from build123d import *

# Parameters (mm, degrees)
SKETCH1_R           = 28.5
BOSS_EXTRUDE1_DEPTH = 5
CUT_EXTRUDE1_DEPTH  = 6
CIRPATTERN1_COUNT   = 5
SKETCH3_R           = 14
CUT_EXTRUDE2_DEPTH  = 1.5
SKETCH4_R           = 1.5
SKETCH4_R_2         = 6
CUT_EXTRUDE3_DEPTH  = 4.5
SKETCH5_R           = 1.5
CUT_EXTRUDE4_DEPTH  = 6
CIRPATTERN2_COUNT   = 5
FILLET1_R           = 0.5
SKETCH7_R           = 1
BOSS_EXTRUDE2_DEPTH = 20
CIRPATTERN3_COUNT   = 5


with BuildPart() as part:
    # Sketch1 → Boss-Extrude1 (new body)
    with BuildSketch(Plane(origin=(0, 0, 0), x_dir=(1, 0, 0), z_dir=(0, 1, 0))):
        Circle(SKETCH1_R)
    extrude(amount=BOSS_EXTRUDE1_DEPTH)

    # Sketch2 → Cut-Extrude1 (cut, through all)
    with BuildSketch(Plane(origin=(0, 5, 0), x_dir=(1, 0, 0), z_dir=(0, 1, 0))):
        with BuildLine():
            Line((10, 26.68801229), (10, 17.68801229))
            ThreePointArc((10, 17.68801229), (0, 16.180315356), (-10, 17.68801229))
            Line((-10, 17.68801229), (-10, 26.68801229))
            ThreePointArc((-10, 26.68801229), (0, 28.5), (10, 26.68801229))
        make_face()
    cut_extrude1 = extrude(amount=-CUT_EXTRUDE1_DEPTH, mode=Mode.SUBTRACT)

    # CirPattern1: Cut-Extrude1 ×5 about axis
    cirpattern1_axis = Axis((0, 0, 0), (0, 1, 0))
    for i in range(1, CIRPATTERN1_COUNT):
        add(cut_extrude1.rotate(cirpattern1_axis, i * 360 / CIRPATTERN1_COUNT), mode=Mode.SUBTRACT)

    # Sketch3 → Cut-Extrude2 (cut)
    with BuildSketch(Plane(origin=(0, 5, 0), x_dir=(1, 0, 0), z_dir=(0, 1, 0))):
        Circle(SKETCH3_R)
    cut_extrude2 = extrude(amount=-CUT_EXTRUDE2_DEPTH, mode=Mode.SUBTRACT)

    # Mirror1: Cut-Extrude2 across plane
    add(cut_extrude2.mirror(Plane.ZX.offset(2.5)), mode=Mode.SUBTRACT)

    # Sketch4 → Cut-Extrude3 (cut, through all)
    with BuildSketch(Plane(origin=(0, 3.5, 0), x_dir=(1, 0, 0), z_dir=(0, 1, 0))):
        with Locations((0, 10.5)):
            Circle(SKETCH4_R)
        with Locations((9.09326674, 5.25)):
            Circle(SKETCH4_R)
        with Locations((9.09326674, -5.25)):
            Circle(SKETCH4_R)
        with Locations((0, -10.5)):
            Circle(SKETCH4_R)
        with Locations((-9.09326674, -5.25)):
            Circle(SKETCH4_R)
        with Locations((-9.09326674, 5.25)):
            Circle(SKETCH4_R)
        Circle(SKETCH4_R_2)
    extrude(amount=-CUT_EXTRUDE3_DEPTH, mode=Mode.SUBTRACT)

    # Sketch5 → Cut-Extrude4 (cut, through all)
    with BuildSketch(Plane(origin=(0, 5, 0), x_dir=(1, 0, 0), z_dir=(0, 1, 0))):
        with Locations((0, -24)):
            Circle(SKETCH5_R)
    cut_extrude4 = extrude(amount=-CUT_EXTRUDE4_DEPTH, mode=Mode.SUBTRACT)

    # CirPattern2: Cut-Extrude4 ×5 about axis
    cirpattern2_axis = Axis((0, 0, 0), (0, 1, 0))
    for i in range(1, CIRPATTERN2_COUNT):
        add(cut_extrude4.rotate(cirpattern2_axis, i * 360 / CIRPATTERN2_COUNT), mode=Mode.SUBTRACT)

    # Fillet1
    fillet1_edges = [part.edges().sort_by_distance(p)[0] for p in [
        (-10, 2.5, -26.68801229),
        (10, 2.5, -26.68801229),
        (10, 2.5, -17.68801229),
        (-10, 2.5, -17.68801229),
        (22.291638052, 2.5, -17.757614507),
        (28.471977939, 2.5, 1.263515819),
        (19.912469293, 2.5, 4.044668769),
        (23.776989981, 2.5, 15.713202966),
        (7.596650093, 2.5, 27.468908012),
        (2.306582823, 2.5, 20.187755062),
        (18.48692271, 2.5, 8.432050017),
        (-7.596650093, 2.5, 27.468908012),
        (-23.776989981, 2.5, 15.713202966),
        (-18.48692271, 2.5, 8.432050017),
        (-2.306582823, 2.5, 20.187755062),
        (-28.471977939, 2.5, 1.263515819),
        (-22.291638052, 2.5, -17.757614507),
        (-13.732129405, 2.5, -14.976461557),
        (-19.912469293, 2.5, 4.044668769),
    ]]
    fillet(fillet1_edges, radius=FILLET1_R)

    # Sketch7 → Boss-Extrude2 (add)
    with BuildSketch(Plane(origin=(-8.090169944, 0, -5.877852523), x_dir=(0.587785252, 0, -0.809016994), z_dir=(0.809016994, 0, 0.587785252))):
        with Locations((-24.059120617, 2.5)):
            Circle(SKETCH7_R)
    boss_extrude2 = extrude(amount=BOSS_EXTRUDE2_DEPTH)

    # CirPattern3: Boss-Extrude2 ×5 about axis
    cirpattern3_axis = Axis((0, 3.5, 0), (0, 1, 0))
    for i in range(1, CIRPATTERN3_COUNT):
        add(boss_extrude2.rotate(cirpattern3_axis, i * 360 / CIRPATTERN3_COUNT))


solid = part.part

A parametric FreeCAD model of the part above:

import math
import FreeCAD as App
import Part
import Sketcher

V = App.Vector
Q = App.Units.Quantity


def edges_at(feature, points):
    """Names of the edges that pass closest to the given points."""
    edges = feature.Shape.Edges
    near = lambda p: min(range(len(edges)), key=lambda i: edges[i].distToShape(Part.Vertex(*p))[0])
    return sorted({f"Edge{near(p) + 1}" for p in points})

doc = App.newDocument("Part")
params = doc.addObject("Spreadsheet::Sheet", "Params")
for row, (alias, value) in enumerate([
    ("sketch1_diameter", "57 mm"),
    ("pad1_length", "5 mm"),
    ("sketch2_radius", "28.5 mm"),
    ("sketch2_height", "9 mm"),
    ("sketch3_diameter", "28 mm"),
    ("pocket2_length", "1.5 mm"),
    ("sketch4_diameter", "3 mm"),
    ("sketch4_diameter2", "12 mm"),
    ("sketch5_diameter", "3 mm"),
    ("fillet_radius", "0.5 mm"),
    ("sketch6_diameter", "2 mm"),
    ("pad2_length", "20 mm"),
], start=1):
    params.set(f"A{row}", alias)
    params.set(f"B{row}", "=" + value)
    params.setAlias(f"B{row}", alias)

body = doc.addObject("PartDesign::Body", "Body")

# Sketch on XZ plane
sketch1 = body.newObject("Sketcher::SketchObject", "Sketch")
sketch1.AttachmentSupport = (doc.getObject("XZ_Plane"), [""])
sketch1.MapMode = "FlatFace"
sketch1.addGeometry(Part.Circle(V(0, 0, 0), V(0, 0, 1), 28), False)
sketch1.addConstraint([
    Sketcher.Constraint("Coincident", 0, 3, -1, 1),
    Sketcher.Constraint("Diameter", 0, Q("57 mm")),
])
sketch1.setExpression("Constraints[1]", "Params.sketch1_diameter")
pad1 = body.newObject("PartDesign::Pad", "Pad")
pad1.Profile = sketch1
pad1.setExpression("Length", "Params.pad1_length")
pad1.Reversed = True

# Sketch on XZ plane
sketch2 = body.newObject("Sketcher::SketchObject", "Sketch001")
sketch2.AttachmentSupport = (doc.getObject("XZ_Plane"), [""])
sketch2.MapMode = "FlatFace"
sketch2.AttachmentOffset = App.Placement(V(0, 0, -5), App.Rotation())
sketch2.addGeometry([
    Part.LineSegment(V(10, -18, 0), V(10, -27, 0)),
    Part.ArcOfCircle(Part.Circle(V(0, 0, 0), V(0, 0, 1), 28), math.radians(-111), math.radians(-69)),
    Part.LineSegment(V(-10, -27, 0), V(-10, -18, 0)),
    Part.ArcOfCircle(Part.Circle(V(0, -50, 0), V(0, 0, 1), 34), math.radians(73), math.radians(107)),
], False)
sketch2.addConstraint([
    Sketcher.Constraint("Coincident", 0, 2, 1, 2),
    Sketcher.Constraint("Coincident", 1, 1, 2, 1),
    Sketcher.Constraint("Coincident", 2, 2, 3, 2),
    Sketcher.Constraint("Coincident", 3, 1, 0, 1),
    Sketcher.Constraint("Vertical", 0),
    Sketcher.Constraint("Vertical", 2),
    Sketcher.Constraint("Coincident", 1, 3, -1, 1),
    Sketcher.Constraint("Symmetric", 2, 2, 3, 1, -2),
    Sketcher.Constraint("Radius", 1, Q("28.5 mm")),
    Sketcher.Constraint("DistanceY", 0, 2, 0, 1, Q("9 mm")),
    Sketcher.Constraint("DistanceX", -1, 1, 0, 2, Q("10 mm")),
    Sketcher.Constraint("Radius", 3, Q("33.917012 mm")),
])
sketch2.setExpression("Constraints[8]", "Params.sketch2_radius")
sketch2.setExpression("Constraints[9]", "Params.sketch2_height")
pocket1 = body.newObject("PartDesign::Pocket", "Pocket")
pocket1.Profile = sketch2
pocket1.Type = "ThroughAll"
pocket1.Reversed = True
doc.recompute()

polarpattern = body.newObject("PartDesign::PolarPattern", "PolarPattern")
polarpattern.Originals = [pocket1]
polarpattern.Axis = (doc.getObject("Y_Axis"), [""])
polarpattern.Angle = 360
polarpattern.Occurrences = 5
body.Tip = polarpattern

# Sketch on XZ plane
sketch3 = body.newObject("Sketcher::SketchObject", "Sketch002")
sketch3.AttachmentSupport = (doc.getObject("XZ_Plane"), [""])
sketch3.MapMode = "FlatFace"
sketch3.AttachmentOffset = App.Placement(V(0, 0, -5), App.Rotation())
sketch3.addGeometry(Part.Circle(V(0, 0, 0), V(0, 0, 1), 14), False)
sketch3.addConstraint([
    Sketcher.Constraint("Coincident", 0, 3, -1, 1),
    Sketcher.Constraint("Diameter", 0, Q("28 mm")),
])
sketch3.setExpression("Constraints[1]", "Params.sketch3_diameter")
pocket2 = body.newObject("PartDesign::Pocket", "Pocket001")
pocket2.Profile = sketch3
pocket2.setExpression("Length", "Params.pocket2_length")
pocket2.Reversed = True
doc.recompute()

datumplane = body.newObject("PartDesign::Plane", "DatumPlane")
datumplane.AttachmentSupport = (doc.getObject("XZ_Plane"), [""])
datumplane.MapMode = "FlatFace"
datumplane.AttachmentOffset = App.Placement(V(0, 0, -2.5), App.Rotation())
mirrored = body.newObject("PartDesign::Mirrored", "Mirrored")
mirrored.Originals = [pocket2]
mirrored.MirrorPlane = (datumplane, [""])
body.Tip = mirrored

# Sketch on XZ plane
sketch4 = body.newObject("Sketcher::SketchObject", "Sketch003")
sketch4.AttachmentSupport = (doc.getObject("XZ_Plane"), [""])
sketch4.MapMode = "FlatFace"
sketch4.AttachmentOffset = App.Placement(V(0, 0, -3.5), App.Rotation())
sketch4.addGeometry([
    Part.Circle(V(0, -10.5, 0), V(0, 0, 1), 1.5),  # 0
    Part.Circle(V(9.1, -5.2, 0), V(0, 0, 1), 1.5),  # 1
    Part.Circle(V(9.1, 5.2, 0), V(0, 0, 1), 1.5),  # 2
    Part.Circle(V(0, 10.5, 0), V(0, 0, 1), 1.5),  # 3
    Part.Circle(V(-9.1, 5.2, 0), V(0, 0, 1), 1.5),  # 4
    Part.Circle(V(-9.1, -5.2, 0), V(0, 0, 1), 1.5),  # 5
    Part.Circle(V(0, 0, 0), V(0, 0, 1), 6),  # 6
], False)
sketch4.addConstraint([
    Sketcher.Constraint("Coincident", 6, 3, -1, 1),
    Sketcher.Constraint("Equal", 0, 1),
    Sketcher.Constraint("Equal", 1, 2),
    Sketcher.Constraint("Equal", 2, 3),
    Sketcher.Constraint("Equal", 3, 4),
    Sketcher.Constraint("Equal", 4, 5),
    Sketcher.Constraint("Symmetric", 0, 3, 3, 3, -1, 1),
    Sketcher.Constraint("Symmetric", 1, 3, 4, 3, -1, 1),
    Sketcher.Constraint("Symmetric", 2, 3, 5, 3, -1, 1),
    Sketcher.Constraint("Symmetric", 2, 3, 4, 3, -2),
    Sketcher.Constraint("PointOnObject", 0, 3, -2),
    Sketcher.Constraint("Diameter", 0, Q("3 mm")),
    Sketcher.Constraint("Diameter", 6, Q("12 mm")),
    Sketcher.Constraint("DistanceY", 0, 3, 3, 3, Q("21 mm")),
    Sketcher.Constraint("DistanceY", 1, 3, 2, 3, Q("10.5 mm")),
    Sketcher.Constraint("DistanceX", -1, 1, 1, 3, Q("9.093267 mm")),
])
sketch4.setExpression("Constraints[11]", "Params.sketch4_diameter")
sketch4.setExpression("Constraints[12]", "Params.sketch4_diameter2")
pocket3 = body.newObject("PartDesign::Pocket", "Pocket002")
pocket3.Profile = sketch4
pocket3.Type = "ThroughAll"
pocket3.Reversed = True

# Sketch on XZ plane
sketch5 = body.newObject("Sketcher::SketchObject", "Sketch004")
sketch5.AttachmentSupport = (doc.getObject("XZ_Plane"), [""])
sketch5.MapMode = "FlatFace"
sketch5.AttachmentOffset = App.Placement(V(0, 0, -5), App.Rotation())
sketch5.addGeometry(Part.Circle(V(0, 24, 0), V(0, 0, 1), 1.5), False)
sketch5.addConstraint([
    Sketcher.Constraint("PointOnObject", 0, 3, -2),
    Sketcher.Constraint("Diameter", 0, Q("3 mm")),
    Sketcher.Constraint("DistanceY", -1, 1, 0, 3, Q("24 mm")),
])
sketch5.setExpression("Constraints[1]", "Params.sketch5_diameter")
pocket4 = body.newObject("PartDesign::Pocket", "Pocket003")
pocket4.Profile = sketch5
pocket4.Type = "ThroughAll"
pocket4.Reversed = True
doc.recompute()

polarpattern2 = body.newObject("PartDesign::PolarPattern", "PolarPattern001")
polarpattern2.Originals = [pocket4]
polarpattern2.Axis = (doc.getObject("Y_Axis"), [""])
polarpattern2.Angle = 360
polarpattern2.Occurrences = 5
body.Tip = polarpattern2
doc.recompute()

fillet = body.newObject("PartDesign::Fillet", "Fillet")
fillet.Base = (polarpattern2, edges_at(polarpattern2, [
    (-10, 2.5, -26.688),
    (10, 2.5, -26.688),
    (10, 2.5, -17.688),
    (-10, 2.5, -17.688),
    (22.292, 2.5, -17.758),
    (28.472, 2.5, 1.264),
    (19.912, 2.5, 4.045),
    (23.777, 2.5, 15.713),
    (7.597, 2.5, 27.469),
    (2.307, 2.5, 20.188),
    (18.487, 2.5, 8.432),
    (-7.597, 2.5, 27.469),
    (-23.777, 2.5, 15.713),
    (-18.487, 2.5, 8.432),
    (-2.307, 2.5, 20.188),
    (-28.472, 2.5, 1.264),
    (-22.292, 2.5, -17.758),
    (-13.732, 2.5, -14.976),
    (-19.912, 2.5, 4.045),
]))
fillet.setExpression("Radius", "Params.fillet_radius")

# Sketch on an angled plane
sketch6 = body.newObject("Sketcher::SketchObject", "Sketch005")
sketch6.Placement = App.Placement(V(-8.09017, 0, -5.877853), App.Rotation(V(0.587785252, 0, -0.809016994), V(0, 0.999999999, 0), V(0.809016994, 0, 0.587785252), "ZXY"))
sketch6.addGeometry(Part.Circle(V(-24.1, 2.5, 0), V(0, 0, 1), 1), False)
sketch6.addConstraint([
    Sketcher.Constraint("Diameter", 0, Q("2 mm")),
    Sketcher.Constraint("DistanceY", -1, 1, 0, 3, Q("2.5 mm")),
    Sketcher.Constraint("DistanceX", 0, 3, -1, 1, Q("24.059121 mm")),
])
sketch6.setExpression("Constraints[0]", "Params.sketch6_diameter")
pad2 = body.newObject("PartDesign::Pad", "Pad001")
pad2.Profile = sketch6
pad2.setExpression("Length", "Params.pad2_length")
doc.recompute()

polarpattern3 = body.newObject("PartDesign::PolarPattern", "PolarPattern002")
polarpattern3.Originals = [pad2]
polarpattern3.Axis = (doc.getObject("Y_Axis"), [""])
polarpattern3.Angle = 360
polarpattern3.Occurrences = 5
body.Tip = polarpattern3

doc.recompute()
